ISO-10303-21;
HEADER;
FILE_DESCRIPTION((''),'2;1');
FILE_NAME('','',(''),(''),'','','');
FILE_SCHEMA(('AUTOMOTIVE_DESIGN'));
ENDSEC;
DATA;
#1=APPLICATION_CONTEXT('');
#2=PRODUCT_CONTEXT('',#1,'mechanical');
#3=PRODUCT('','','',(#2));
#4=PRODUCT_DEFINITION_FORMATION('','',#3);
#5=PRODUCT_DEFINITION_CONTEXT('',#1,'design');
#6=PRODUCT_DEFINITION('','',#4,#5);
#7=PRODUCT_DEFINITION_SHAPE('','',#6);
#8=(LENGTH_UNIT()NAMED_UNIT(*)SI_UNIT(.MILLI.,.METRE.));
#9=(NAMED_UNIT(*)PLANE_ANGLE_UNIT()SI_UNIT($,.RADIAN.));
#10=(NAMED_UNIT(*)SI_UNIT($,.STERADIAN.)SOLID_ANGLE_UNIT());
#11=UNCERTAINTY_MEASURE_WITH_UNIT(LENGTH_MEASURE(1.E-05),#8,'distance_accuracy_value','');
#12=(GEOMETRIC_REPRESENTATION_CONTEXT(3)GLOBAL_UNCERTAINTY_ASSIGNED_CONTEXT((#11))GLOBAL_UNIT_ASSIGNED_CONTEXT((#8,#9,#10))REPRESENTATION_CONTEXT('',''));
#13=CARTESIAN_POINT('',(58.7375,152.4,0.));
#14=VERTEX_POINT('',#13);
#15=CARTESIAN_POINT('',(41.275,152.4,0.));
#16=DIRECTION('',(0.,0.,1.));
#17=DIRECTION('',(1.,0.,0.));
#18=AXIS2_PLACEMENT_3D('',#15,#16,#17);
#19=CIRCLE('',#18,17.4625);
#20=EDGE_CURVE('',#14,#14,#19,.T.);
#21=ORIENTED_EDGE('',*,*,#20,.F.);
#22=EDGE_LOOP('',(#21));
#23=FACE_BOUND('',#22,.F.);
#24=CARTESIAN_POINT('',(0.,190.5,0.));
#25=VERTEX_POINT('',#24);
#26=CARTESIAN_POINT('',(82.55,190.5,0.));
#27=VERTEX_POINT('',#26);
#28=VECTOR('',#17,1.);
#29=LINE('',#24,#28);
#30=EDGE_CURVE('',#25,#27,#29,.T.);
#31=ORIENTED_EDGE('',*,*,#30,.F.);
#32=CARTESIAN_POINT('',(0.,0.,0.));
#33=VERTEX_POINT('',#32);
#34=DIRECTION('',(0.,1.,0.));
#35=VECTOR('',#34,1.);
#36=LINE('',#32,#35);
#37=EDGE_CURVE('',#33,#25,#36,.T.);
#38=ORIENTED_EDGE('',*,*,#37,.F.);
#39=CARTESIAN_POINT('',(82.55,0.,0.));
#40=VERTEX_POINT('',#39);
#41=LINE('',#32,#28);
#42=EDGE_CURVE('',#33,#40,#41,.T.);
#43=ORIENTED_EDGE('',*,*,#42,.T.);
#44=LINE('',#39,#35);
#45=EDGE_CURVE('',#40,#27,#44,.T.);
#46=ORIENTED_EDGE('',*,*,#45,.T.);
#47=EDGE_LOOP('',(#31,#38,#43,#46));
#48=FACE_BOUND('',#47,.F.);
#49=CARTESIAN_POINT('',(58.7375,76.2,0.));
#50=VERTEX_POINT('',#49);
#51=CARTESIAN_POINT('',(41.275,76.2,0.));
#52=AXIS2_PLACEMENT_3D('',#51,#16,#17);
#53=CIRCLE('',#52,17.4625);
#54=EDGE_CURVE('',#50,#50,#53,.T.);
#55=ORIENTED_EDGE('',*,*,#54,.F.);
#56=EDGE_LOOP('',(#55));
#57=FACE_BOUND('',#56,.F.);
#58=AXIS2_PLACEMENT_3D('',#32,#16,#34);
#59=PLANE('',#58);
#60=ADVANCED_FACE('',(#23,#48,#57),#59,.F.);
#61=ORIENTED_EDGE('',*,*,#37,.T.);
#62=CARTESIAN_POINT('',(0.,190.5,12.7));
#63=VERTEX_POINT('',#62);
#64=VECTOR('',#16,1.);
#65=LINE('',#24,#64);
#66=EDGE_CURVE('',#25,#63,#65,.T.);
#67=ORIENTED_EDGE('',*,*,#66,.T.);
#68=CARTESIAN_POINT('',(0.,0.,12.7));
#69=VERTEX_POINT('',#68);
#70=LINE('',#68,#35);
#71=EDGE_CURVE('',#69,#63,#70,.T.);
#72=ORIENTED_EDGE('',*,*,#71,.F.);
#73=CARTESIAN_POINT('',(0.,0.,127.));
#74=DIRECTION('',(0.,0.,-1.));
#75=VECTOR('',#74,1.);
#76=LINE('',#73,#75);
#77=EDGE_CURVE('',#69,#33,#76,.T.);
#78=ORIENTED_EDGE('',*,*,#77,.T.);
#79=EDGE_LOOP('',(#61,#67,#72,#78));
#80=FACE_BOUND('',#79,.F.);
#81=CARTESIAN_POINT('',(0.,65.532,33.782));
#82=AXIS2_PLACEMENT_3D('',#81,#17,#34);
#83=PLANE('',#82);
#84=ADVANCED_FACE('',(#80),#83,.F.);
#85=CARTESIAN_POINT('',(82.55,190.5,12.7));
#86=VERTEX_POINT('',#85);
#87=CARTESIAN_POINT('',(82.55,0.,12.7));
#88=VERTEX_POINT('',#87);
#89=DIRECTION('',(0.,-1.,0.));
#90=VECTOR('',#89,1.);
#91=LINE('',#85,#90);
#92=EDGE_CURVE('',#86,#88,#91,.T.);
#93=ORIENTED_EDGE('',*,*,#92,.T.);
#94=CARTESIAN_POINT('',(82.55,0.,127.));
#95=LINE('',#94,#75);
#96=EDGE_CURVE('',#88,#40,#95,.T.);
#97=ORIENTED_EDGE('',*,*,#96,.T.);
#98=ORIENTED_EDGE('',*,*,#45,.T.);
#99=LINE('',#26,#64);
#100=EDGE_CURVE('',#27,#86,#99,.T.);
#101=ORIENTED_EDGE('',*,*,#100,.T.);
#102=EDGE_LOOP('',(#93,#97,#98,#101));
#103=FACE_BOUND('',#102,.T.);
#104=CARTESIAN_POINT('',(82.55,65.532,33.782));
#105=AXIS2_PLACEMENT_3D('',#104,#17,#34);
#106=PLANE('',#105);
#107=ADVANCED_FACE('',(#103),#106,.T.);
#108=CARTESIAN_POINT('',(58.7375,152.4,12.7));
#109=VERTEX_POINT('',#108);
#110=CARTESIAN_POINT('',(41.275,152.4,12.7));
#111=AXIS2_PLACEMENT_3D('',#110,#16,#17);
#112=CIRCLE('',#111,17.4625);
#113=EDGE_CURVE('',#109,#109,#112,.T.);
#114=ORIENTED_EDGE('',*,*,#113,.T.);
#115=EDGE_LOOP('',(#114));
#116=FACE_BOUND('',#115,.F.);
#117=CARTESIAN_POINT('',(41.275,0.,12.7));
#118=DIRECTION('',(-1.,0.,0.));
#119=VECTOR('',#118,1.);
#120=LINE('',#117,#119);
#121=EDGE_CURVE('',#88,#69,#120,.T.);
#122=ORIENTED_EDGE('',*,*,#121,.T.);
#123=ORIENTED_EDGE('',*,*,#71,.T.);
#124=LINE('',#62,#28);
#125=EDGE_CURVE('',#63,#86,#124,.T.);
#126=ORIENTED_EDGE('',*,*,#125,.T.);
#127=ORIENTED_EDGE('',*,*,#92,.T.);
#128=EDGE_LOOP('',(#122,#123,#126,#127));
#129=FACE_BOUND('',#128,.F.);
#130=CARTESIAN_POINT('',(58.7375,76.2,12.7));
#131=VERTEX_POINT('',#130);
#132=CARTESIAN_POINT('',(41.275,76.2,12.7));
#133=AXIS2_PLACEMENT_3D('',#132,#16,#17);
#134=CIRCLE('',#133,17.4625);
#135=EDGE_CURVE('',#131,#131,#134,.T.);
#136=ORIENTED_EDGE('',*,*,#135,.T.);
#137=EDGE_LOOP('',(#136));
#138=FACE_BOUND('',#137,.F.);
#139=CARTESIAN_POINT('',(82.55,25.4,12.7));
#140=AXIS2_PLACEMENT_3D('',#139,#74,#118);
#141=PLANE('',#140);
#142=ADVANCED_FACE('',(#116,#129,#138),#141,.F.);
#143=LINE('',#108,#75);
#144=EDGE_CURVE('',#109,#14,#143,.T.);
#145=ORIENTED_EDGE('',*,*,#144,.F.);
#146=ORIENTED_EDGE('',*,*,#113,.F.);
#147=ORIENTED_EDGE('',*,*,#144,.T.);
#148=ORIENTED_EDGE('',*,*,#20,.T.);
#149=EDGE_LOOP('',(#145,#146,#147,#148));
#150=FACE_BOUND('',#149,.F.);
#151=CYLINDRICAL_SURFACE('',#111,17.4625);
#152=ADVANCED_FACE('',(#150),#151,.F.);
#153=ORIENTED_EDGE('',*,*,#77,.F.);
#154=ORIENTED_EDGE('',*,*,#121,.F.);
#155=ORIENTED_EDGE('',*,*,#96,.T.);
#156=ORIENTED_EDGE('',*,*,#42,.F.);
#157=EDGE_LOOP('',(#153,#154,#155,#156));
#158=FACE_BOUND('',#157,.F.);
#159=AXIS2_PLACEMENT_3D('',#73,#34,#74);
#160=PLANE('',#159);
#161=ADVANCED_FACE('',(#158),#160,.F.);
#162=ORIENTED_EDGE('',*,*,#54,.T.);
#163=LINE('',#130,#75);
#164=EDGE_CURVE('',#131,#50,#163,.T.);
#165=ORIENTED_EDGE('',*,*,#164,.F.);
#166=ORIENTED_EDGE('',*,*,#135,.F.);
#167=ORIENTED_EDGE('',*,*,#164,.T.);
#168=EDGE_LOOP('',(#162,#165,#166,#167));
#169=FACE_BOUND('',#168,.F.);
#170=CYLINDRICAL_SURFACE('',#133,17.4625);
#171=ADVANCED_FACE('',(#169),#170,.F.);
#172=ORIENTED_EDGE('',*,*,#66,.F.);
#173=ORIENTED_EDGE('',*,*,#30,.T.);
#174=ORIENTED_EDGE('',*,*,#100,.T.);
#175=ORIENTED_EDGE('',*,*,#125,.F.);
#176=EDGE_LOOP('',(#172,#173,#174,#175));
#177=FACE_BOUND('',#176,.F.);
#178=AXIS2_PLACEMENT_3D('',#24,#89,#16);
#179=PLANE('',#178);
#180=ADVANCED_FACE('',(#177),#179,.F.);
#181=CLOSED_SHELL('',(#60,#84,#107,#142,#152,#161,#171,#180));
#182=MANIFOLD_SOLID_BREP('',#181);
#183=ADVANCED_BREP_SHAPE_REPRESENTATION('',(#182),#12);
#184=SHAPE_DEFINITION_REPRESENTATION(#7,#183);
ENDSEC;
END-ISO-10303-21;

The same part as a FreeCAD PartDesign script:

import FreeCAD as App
import Part
import Sketcher
from FreeCAD import Vector
Q = App.Units.Quantity


def add_polygon(sketch, points):
    """Adds a closed chain of lines whose ends are joined by coincident constraints."""
    first, n = sketch.GeometryCount, len(points)
    for a, b in zip(points, points[1:] + points[:1]):
        sketch.addGeometry(Part.LineSegment(App.Vector(*a, 0), App.Vector(*b, 0)), False)
    for i in range(n):
        sketch.addConstraint(Sketcher.Constraint("Coincident", first + i, 2, first + (i + 1) % n, 1))

doc = App.newDocument("Part")
params = doc.addObject("Spreadsheet::Sheet", "Params")
for row, (alias, value) in enumerate([
    ("sketch1_width", "1 in"),
    ("sketch1_height", "5 in"),
    ("sketch1_width2", "7.5 in"),
    ("sketch1_height2", "0.5 in"),
    ("pad1_length", "3.25 in"),
    ("sketch2_diameter", "1.375 in"),
    ("pocket1_length", "1 in"),
    ("sketch3_height", "4.5 in"),
    ("sketch3_width", "3.25 in"),
], start=1):
    params.set(f"A{row}", alias)
    params.set(f"B{row}", "=" + value)
    params.setAlias(f"B{row}", alias)

body = doc.addObject("PartDesign::Body", "Body")

sketch1 = body.newObject("Sketcher::SketchObject", "Sketch")
sketch1.AttachmentSupport = (doc.getObject("YZ_Plane"), [""])
sketch1.MapMode = "FlatFace"
add_polygon(sketch1, [(0, 127), (0, 0), (190.5, 0), (190.5, 12.7), (25.4, 12.7), (25.4, 127)])
sketch1.addConstraint([
    Sketcher.Constraint("Vertical", 0),
    Sketcher.Constraint("Horizontal", 1),
    Sketcher.Constraint("Vertical", 2),
    Sketcher.Constraint("Horizontal", 3),
    Sketcher.Constraint("Vertical", 4),
    Sketcher.Constraint("Horizontal", 5),
    Sketcher.Constraint("Coincident", 0, 2, -1, 1),
    Sketcher.Constraint("DistanceX", 5, 2, 5, 1, Q("1 in")),
    Sketcher.Constraint("DistanceY", 0, 2, 0, 1, Q("5 in")),
    Sketcher.Constraint("DistanceX", 1, 1, 1, 2, Q("7.5 in")),
    Sketcher.Constraint("DistanceY", 2, 1, 2, 2, Q("0.5 in")),
])
sketch1.setExpression("Constraints[13]", "Params.sketch1_width")
sketch1.setExpression("Constraints[14]", "Params.sketch1_height")
sketch1.setExpression("Constraints[15]", "Params.sketch1_width2")
sketch1.setExpression("Constraints[16]", "Params.sketch1_height2")
pad1 = body.newObject("PartDesign::Pad", "Pad")
pad1.Profile = sketch1
pad1.setExpression("Length", "Params.pad1_length")

sketch2 = body.newObject("Sketcher::SketchObject", "Sketch001")
sketch2.AttachmentSupport = (doc.getObject("XY_Plane"), [""])
sketch2.MapMode = "FlatFace"
sketch2.AttachmentOffset = App.Placement(Vector(0, 0, 0.5 * 25.4), App.Rotation())
sketch2.addGeometry([
    Part.Circle(Vector(41.275, 76.2, 0), Vector(0, 0, 1), 17.4625),
    Part.Circle(Vector(41.275, 152.4, 0), Vector(0, 0, 1), 17.4625),
], False)
sketch2.addConstraint([
    Sketcher.Constraint("Equal", 0, 1),
    Sketcher.Constraint("Vertical", 0, 3, 1, 3),
    Sketcher.Constraint("Diameter", 0, Q("1.375 in")),
    Sketcher.Constraint("DistanceY", -1, 1, 0, 3, Q("3 in")),
    Sketcher.Constraint("DistanceY", -1, 1, 1, 3, Q("6 in")),
    Sketcher.Constraint("DistanceX", -1, 1, 0, 3, Q("1.625 in")),
])
sketch2.setExpression("Constraints[2]", "Params.sketch2_diameter")
pocket1 = body.newObject("PartDesign::Pocket", "Pocket")
pocket1.Profile = sketch2
pocket1.setExpression("Length", "Params.pocket1_length")

sketch3 = body.newObject("Sketcher::SketchObject", "Sketch002")
sketch3.AttachmentSupport = (doc.getObject("XZ_Plane"), [""])
sketch3.MapMode = "FlatFace"
sketch3.AttachmentOffset = App.Placement(Vector(0, 0, -1 * 25.4), App.Rotation())
add_polygon(sketch3, [(82.55, 127), (82.55, 12.7), (0, 12.7), (0, 127)])
sketch3.addConstraint([
    Sketcher.Constraint("Vertical", 0),
    Sketcher.Constraint("Horizontal", 1),
    Sketcher.Constraint("Vertical", 2),
    Sketcher.Constraint("Horizontal", 3),
    Sketcher.Constraint("PointOnObject", 1, 2, -2),
    Sketcher.Constraint("DistanceY", 0, 2, 0, 1, Q("4.5 in")),
    Sketcher.Constraint("DistanceY", -1, 1, 2, 2, Q("5 in")),
    Sketcher.Constraint("DistanceX", 1, 2, 1, 1, Q("3.25 in")),
])
sketch3.setExpression("Constraints[9]", "Params.sketch3_height")
sketch3.setExpression("Constraints[11]", "Params.sketch3_width")
pocket2 = body.newObject("PartDesign::Pocket", "Pocket001")
pocket2.Profile = sketch3
pocket2.Type = "ThroughAll"
pocket2.Reversed = True

doc.recompute()
